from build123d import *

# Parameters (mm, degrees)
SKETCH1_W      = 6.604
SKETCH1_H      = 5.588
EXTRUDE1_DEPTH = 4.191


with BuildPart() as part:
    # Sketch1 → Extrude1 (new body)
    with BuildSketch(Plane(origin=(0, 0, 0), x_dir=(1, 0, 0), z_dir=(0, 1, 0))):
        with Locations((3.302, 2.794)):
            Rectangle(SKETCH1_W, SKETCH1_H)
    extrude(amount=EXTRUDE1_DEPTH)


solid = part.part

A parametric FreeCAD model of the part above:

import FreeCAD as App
import Part
import Sketcher

V = App.Vector
Q = App.Units.Quantity


def add_polygon(sketch, points):
    """Adds a closed chain of lines whose ends are joined by coincident constraints."""
    first, n = sketch.GeometryCount, len(points)
    for a, b in zip(points, points[1:] + points[:1]):
        sketch.addGeometry(Part.LineSegment(App.Vector(*a, 0), App.Vector(*b, 0)), False)
    for i in range(n):
        sketch.addConstraint(Sketcher.Constraint("Coincident", first + i, 2, first + (i + 1) % n, 1))

doc = App.newDocument("Part")
params = doc.addObject("Spreadsheet::Sheet", "Params")
for row, (alias, value) in enumerate([
    ("sketch1_width", "0.26 in"),
    ("sketch1_height", "0.22 in"),
    ("pad1_length", "0.165 in"),
], start=1):
    params.set(f"A{row}", alias)
    params.set(f"B{row}", "=" + value)
    params.setAlias(f"B{row}", alias)

body = doc.addObject("PartDesign::Body", "Body")

# Sketch on XZ plane
sketch1 = body.newObject("Sketcher::SketchObject", "Sketch")
sketch1.AttachmentSupport = (doc.getObject("XZ_Plane"), [""])
sketch1.MapMode = "FlatFace"
add_polygon(sketch1, [(0, -6), (0, 0), (7, 0), (7, -6)])  # lines 0-3
sketch1.addConstraint([
    Sketcher.Constraint("Vertical", 0),
    Sketcher.Constraint("Horizontal", 1),
    Sketcher.Constraint("Vertical", 2),
    Sketcher.Constraint("Horizontal", 3),
    Sketcher.Constraint("Coincident", 0, 2, -1, 1),
    Sketcher.Constraint("DistanceX", 1, 1, 1, 2, Q("0.26 in")),
    Sketcher.Constraint("DistanceY", 0, 1, 0, 2, Q("0.22 in")),
])
sketch1.setExpression("Constraints[9]", "Params.sketch1_width")
sketch1.setExpression("Constraints[10]", "Params.sketch1_height")
pad1 = body.newObject("PartDesign::Pad", "Pad")
pad1.Profile = sketch1
pad1.setExpression("Length", "Params.pad1_length")
pad1.Reversed = True

doc.recompute()
